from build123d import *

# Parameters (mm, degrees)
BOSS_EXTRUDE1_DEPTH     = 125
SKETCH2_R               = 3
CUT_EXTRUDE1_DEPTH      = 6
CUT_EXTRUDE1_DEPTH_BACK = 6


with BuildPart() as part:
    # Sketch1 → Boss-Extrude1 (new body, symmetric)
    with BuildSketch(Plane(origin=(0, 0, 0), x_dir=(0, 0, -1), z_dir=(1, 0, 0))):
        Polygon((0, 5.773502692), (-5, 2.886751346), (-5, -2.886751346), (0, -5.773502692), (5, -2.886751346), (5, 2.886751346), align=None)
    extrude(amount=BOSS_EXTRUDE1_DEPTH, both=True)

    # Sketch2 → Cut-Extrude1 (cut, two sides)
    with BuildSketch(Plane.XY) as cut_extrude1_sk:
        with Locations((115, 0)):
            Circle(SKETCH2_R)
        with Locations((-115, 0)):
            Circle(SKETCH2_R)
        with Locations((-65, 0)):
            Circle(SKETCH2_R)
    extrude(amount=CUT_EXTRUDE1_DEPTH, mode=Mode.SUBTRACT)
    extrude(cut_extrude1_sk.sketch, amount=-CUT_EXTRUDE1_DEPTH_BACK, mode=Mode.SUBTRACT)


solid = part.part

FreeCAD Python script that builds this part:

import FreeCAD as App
import Part
import Sketcher

V = App.Vector
Q = App.Units.Quantity


def add_polygon(sketch, points):
    """Adds a closed chain of lines whose ends are joined by coincident constraints."""
    first, n = sketch.GeometryCount, len(points)
    for a, b in zip(points, points[1:] + points[:1]):
        sketch.addGeometry(Part.LineSegment(App.Vector(*a, 0), App.Vector(*b, 0)), False)
    for i in range(n):
        sketch.addConstraint(Sketcher.Constraint("Coincident", first + i, 2, first + (i + 1) % n, 1))

doc = App.newDocument("Part")
body = doc.addObject("PartDesign::Body", "Body")

sketch1 = body.newObject("Sketcher::SketchObject", "Sketch")
sketch1.AttachmentSupport = (doc.getObject("YZ_Plane"), [""])
sketch1.MapMode = "FlatFace"
add_polygon(sketch1, [(6, 0), (3, 5), (-3, 5), (-6, 0), (-3, -5), (3, -5)])
sketch1.addConstraint(Sketcher.Constraint("Horizontal", 1))
sketch1.addConstraint(Sketcher.Constraint("Horizontal", 4))
sketch1.addConstraint(Sketcher.Constraint("Symmetric", 0, 2, 3, 2, -1, 1))
sketch1.addConstraint(Sketcher.Constraint("Symmetric", 2, 2, 5, 2, -1, 1))
sketch1.addConstraint(Sketcher.Constraint("PointOnObject", 2, 2, -1))
sketch1.addConstraint(Sketcher.Constraint("Parallel", 2, 5))
sketch1.addConstraint(Sketcher.Constraint("Vertical", 1, 2, 3, 2))
sketch1.addConstraint(Sketcher.Constraint("Angle", 0, Q("120 deg")))
sketch1.addConstraint(Sketcher.Constraint("DistanceY", -1, 1, 0, 2, 5.0))
sketch1.addConstraint(Sketcher.Constraint("DistanceX", 1, 2, 1, 1, 5.773503))
pad1 = body.newObject("PartDesign::Pad", "Pad")
pad1.Profile = sketch1
pad1.Length = 250
pad1.Midplane = True

sketch2 = body.newObject("Sketcher::SketchObject", "Sketch001")
sketch2.AttachmentSupport = (doc.getObject("XY_Plane"), [""])
sketch2.MapMode = "FlatFace"
sketch2.addGeometry(Part.Circle(V(115, 0, 0), V(0, 0, 1), 3), False)
sketch2.addGeometry(Part.Circle(V(-115, 0, 0), V(0, 0, 1), 3), False)
sketch2.addGeometry(Part.Circle(V(-65, 0, 0), V(0, 0, 1), 3), False)
sketch2.addConstraint(Sketcher.Constraint("Equal", 0, 1))
sketch2.addConstraint(Sketcher.Constraint("Equal", 1, 2))
sketch2.addConstraint(Sketcher.Constraint("Symmetric", 0, 3, 1, 3, -1, 1))
sketch2.addConstraint(Sketcher.Constraint("PointOnObject", 0, 3, -1))
sketch2.addConstraint(Sketcher.Constraint("PointOnObject", 2, 3, -1))
sketch2.addConstraint(Sketcher.Constraint("Diameter", 0, 6.0))
sketch2.addConstraint(Sketcher.Constraint("DistanceX", -1, 1, 0, 3, 115.0))
sketch2.addConstraint(Sketcher.Constraint("DistanceX", 2, 3, -1, 1, 65.0))
pocket1 = body.newObject("PartDesign::Pocket", "Pocket")
pocket1.Profile = sketch2
pocket1.Type = "ThroughAll"
pocket1.Midplane = True

doc.recompute()
